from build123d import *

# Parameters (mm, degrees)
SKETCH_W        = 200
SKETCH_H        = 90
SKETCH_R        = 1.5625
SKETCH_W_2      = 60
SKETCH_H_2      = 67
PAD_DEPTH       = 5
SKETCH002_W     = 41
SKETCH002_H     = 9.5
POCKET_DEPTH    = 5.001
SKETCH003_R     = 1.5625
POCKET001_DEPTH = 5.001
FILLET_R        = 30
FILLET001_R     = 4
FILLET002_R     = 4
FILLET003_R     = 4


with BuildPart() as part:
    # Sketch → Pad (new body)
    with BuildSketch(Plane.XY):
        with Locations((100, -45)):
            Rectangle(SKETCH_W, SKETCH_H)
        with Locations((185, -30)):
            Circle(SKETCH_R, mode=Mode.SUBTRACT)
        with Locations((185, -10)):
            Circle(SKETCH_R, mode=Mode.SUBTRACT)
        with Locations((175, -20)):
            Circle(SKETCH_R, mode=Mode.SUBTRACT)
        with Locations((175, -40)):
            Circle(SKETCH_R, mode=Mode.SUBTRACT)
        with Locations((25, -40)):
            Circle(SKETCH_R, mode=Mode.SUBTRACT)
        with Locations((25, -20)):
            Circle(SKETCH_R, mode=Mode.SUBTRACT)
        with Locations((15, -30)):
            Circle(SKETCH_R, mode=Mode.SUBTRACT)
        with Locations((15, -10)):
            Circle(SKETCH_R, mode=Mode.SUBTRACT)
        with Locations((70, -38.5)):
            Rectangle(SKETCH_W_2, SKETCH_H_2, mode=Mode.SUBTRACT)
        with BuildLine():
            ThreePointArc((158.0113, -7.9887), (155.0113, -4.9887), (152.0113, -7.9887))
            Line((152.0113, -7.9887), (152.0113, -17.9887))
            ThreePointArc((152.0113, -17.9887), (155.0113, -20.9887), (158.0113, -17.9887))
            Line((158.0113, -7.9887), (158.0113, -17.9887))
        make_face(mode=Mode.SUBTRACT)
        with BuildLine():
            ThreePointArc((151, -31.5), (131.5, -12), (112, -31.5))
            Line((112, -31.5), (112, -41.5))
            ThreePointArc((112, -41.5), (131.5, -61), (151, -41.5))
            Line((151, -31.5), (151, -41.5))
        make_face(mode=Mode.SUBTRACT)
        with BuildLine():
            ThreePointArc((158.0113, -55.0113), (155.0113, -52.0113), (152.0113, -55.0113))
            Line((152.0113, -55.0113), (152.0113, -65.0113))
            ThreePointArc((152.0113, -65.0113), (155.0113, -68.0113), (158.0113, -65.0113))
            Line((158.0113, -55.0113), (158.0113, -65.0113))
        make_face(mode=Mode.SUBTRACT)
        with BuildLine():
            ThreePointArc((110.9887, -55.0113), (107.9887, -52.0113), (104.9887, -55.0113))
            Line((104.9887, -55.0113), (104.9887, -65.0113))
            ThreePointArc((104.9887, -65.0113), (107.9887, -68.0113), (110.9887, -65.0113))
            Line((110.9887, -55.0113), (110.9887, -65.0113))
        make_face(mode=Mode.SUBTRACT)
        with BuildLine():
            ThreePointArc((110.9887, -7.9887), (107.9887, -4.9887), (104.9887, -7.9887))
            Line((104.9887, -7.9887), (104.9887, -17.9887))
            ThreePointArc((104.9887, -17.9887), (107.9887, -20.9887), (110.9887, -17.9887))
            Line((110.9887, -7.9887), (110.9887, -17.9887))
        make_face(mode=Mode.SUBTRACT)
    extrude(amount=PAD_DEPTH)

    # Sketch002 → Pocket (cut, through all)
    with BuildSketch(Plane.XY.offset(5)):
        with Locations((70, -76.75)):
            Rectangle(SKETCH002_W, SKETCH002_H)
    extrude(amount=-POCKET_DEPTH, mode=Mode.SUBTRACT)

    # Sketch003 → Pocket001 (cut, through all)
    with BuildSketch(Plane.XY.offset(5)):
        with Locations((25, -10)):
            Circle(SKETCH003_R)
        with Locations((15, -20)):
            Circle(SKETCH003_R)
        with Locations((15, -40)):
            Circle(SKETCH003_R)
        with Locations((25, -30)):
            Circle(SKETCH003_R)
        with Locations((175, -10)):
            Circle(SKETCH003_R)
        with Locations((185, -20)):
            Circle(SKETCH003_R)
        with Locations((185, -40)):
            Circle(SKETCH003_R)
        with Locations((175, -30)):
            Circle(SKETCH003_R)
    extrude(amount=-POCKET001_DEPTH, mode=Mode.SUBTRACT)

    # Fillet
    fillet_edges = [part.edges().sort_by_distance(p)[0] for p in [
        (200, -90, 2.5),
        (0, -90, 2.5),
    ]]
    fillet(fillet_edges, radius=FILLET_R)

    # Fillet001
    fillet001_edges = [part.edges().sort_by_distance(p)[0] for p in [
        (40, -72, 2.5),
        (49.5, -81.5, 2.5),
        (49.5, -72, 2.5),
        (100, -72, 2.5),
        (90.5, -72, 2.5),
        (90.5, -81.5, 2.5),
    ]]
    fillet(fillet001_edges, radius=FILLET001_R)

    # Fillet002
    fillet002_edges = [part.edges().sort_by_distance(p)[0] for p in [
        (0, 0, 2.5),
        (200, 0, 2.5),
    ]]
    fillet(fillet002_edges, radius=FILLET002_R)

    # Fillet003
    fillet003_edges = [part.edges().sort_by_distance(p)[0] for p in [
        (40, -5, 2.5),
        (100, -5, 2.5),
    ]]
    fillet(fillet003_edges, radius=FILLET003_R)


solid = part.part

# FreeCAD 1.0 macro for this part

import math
import FreeCAD as App
import Part
import Sketcher

V = App.Vector
Q = App.Units.Quantity


def edges_at(feature, points):
    """Names of the edges that pass closest to the given points."""
    edges = feature.Shape.Edges
    near = lambda p: min(range(len(edges)), key=lambda i: edges[i].distToShape(Part.Vertex(*p))[0])
    return sorted({f"Edge{near(p) + 1}" for p in points})

doc = App.newDocument("Part")
params = doc.addObject("Spreadsheet::Sheet", "Params")
for row, (alias, value) in enumerate([
    ("sketch1_radius", "3 mm"),
    ("sketch1_radius2", "19.5 mm"),
    ("sketch1_width", "200 mm"),
    ("sketch1_width2", "60 mm"),
    ("sketch1_height", "90 mm"),
    ("pad1_length", "5 mm"),
    ("sketch2_width", "41 mm"),
    ("sketch2_height", "9.5 mm"),
    ("fillet_radius", "30 mm"),
    ("fillet2_radius", "4 mm"),
    ("fillet3_radius", "4 mm"),
    ("fillet4_radius", "4 mm"),
], start=1):
    params.set(f"A{row}", alias)
    params.set(f"B{row}", "=" + value)
    params.setAlias(f"B{row}", alias)

body = doc.addObject("PartDesign::Body", "Body")

# Sketch on XY plane
sketch1 = body.newObject("Sketcher::SketchObject", "Sketch")
sketch1.AttachmentSupport = (doc.getObject("XY_Plane"), [""])
sketch1.MapMode = "FlatFace"
sketch1.addGeometry(Part.LineSegment(V(0, 0, 0), V(0, -90, 0)), False)
sketch1.addGeometry(Part.LineSegment(V(0, -90, 0), V(200, -90, 0)), False)
sketch1.addGeometry(Part.LineSegment(V(200, -90, 0), V(200, 0, 0)), False)
sketch1.addGeometry(Part.LineSegment(V(200, 0, 0), V(0, 0, 0)), False)
sketch1.addGeometry(Part.Circle(V(25, -40, 0), V(0, 0, 1), 1.5625), False)
sketch1.addGeometry(Part.LineSegment(V(100, -72, 0), V(40, -72, 0)), False)
sketch1.addGeometry(Part.LineSegment(V(40, -72, 0), V(40, -5, 0)), False)
sketch1.addGeometry(Part.LineSegment(V(40, -5, 0), V(100, -5, 0)), False)
sketch1.addGeometry(Part.LineSegment(V(100, -5, 0), V(100, -72, 0)), False)
sketch1.addGeometry(Part.ArcOfCircle(Part.Circle(V(107.9887, -55.0113, 0), V(0, 0, 1), 3), math.radians(0), math.radians(180)), False)
sketch1.addGeometry(Part.LineSegment(V(110.9887, -55.0113, 0), V(110.9887, -65.0113, 0)), False)
sketch1.addGeometry(Part.ArcOfCircle(Part.Circle(V(107.9887, -65.0113, 0), V(0, 0, 1), 3), math.radians(180), math.radians(360)), False)
sketch1.addGeometry(Part.LineSegment(V(104.9887, -65.0113, 0), V(104.9887, -55.0113, 0)), False)
sketch1.addGeometry(Part.ArcOfCircle(Part.Circle(V(155.0113, -55.0113, 0), V(0, 0, 1), 3), math.radians(0), math.radians(180)), False)
sketch1.addGeometry(Part.LineSegment(V(158.0113, -55.0113, 0), V(158.0113, -65.0113, 0)), False)
sketch1.addGeometry(Part.ArcOfCircle(Part.Circle(V(155.0113, -65.0113, 0), V(0, 0, 1), 3), math.radians(180), math.radians(360)), False)
sketch1.addGeometry(Part.LineSegment(V(152.0113, -65.0113, 0), V(152.0113, -55.0113, 0)), False)
sketch1.addGeometry(Part.Circle(V(175, -40, 0), V(0, 0, 1), 1.5625), False)
sketch1.addGeometry(Part.Circle(V(15, -30, 0), V(0, 0, 1), 1.5625), False)
sketch1.addGeometry(Part.Circle(V(25, -20, 0), V(0, 0, 1), 1.5625), False)
sketch1.addGeometry(Part.Circle(V(15, -10, 0), V(0, 0, 1), 1.5625), False)
sketch1.addGeometry(Part.ArcOfCircle(Part.Circle(V(131.5, -31.5, 0), V(0, 0, 1), 19.5), math.radians(0), math.radians(180)), False)
sketch1.addGeometry(Part.LineSegment(V(151, -31.5, 0), V(151, -41.5, 0)), False)
sketch1.addGeometry(Part.ArcOfCircle(Part.Circle(V(131.5, -41.5, 0), V(0, 0, 1), 19.5), math.radians(180), math.radians(360)), False)
sketch1.addGeometry(Part.LineSegment(V(112, -41.5, 0), V(112, -31.5, 0)), False)
sketch1.addGeometry(Part.Circle(V(185, -30, 0), V(0, 0, 1), 1.5625), False)
sketch1.addGeometry(Part.ArcOfCircle(Part.Circle(V(107.9887, -7.9887, 0), V(0, 0, 1), 3), math.radians(0), math.radians(180)), False)
sketch1.addGeometry(Part.LineSegment(V(110.9887, -7.9887, 0), V(110.9887, -17.9887, 0)), False)
sketch1.addGeometry(Part.ArcOfCircle(Part.Circle(V(107.9887, -17.9887, 0), V(0, 0, 1), 3), math.radians(180), math.radians(360)), False)
sketch1.addGeometry(Part.LineSegment(V(104.9887, -17.9887, 0), V(104.9887, -7.9887, 0)), False)
sketch1.addGeometry(Part.Circle(V(175, -20, 0), V(0, 0, 1), 1.5625), False)
sketch1.addGeometry(Part.ArcOfCircle(Part.Circle(V(155.0113, -7.9887, 0), V(0, 0, 1), 3), math.radians(0), math.radians(180)), False)
sketch1.addGeometry(Part.LineSegment(V(158.0113, -7.9887, 0), V(158.0113, -17.9887, 0)), False)
sketch1.addGeometry(Part.ArcOfCircle(Part.Circle(V(155.0113, -17.9887, 0), V(0, 0, 1), 3), math.radians(180), math.radians(360)), False)
sketch1.addGeometry(Part.LineSegment(V(152.0113, -17.9887, 0), V(152.0113, -7.9887, 0)), False)
sketch1.addGeometry(Part.Circle(V(185, -10, 0), V(0, 0, 1), 1.5625), False)
sketch1.addConstraint(Sketcher.Constraint("Coincident", 0, 2, 1, 1))
sketch1.addConstraint(Sketcher.Constraint("Coincident", 1, 2, 2, 1))
sketch1.addConstraint(Sketcher.Constraint("Coincident", 2, 2, 3, 1))
sketch1.addConstraint(Sketcher.Constraint("Coincident", 3, 2, 0, 1))
sketch1.addConstraint(Sketcher.Constraint("Coincident", 5, 2, 6, 1))
sketch1.addConstraint(Sketcher.Constraint("Coincident", 6, 2, 7, 1))
sketch1.addConstraint(Sketcher.Constraint("Coincident", 7, 2, 8, 1))
sketch1.addConstraint(Sketcher.Constraint("Coincident", 8, 2, 5, 1))
sketch1.addConstraint(Sketcher.Constraint("Tangent", 9, 1, 10, 1))
sketch1.addConstraint(Sketcher.Constraint("Tangent", 10, 2, 11, 2))
sketch1.addConstraint(Sketcher.Constraint("Tangent", 11, 1, 12, 1))
sketch1.addConstraint(Sketcher.Constraint("Tangent", 12, 2, 9, 2))
sketch1.addConstraint(Sketcher.Constraint("Tangent", 13, 1, 14, 1))
sketch1.addConstraint(Sketcher.Constraint("Tangent", 14, 2, 15, 2))
sketch1.addConstraint(Sketcher.Constraint("Tangent", 15, 1, 16, 1))
sketch1.addConstraint(Sketcher.Constraint("Tangent", 16, 2, 13, 2))
sketch1.addConstraint(Sketcher.Constraint("Tangent", 21, 1, 22, 1))
sketch1.addConstraint(Sketcher.Constraint("Tangent", 22, 2, 23, 2))
sketch1.addConstraint(Sketcher.Constraint("Tangent", 23, 1, 24, 1))
sketch1.addConstraint(Sketcher.Constraint("Tangent", 24, 2, 21, 2))
sketch1.addConstraint(Sketcher.Constraint("Tangent", 26, 1, 27, 1))
sketch1.addConstraint(Sketcher.Constraint("Tangent", 27, 2, 28, 2))
sketch1.addConstraint(Sketcher.Constraint("Tangent", 28, 1, 29, 1))
sketch1.addConstraint(Sketcher.Constraint("Tangent", 29, 2, 26, 2))
sketch1.addConstraint(Sketcher.Constraint("Tangent", 31, 1, 32, 1))
sketch1.addConstraint(Sketcher.Constraint("Tangent", 32, 2, 33, 2))
sketch1.addConstraint(Sketcher.Constraint("Tangent", 33, 1, 34, 1))
sketch1.addConstraint(Sketcher.Constraint("Tangent", 34, 2, 31, 2))
sketch1.addConstraint(Sketcher.Constraint("Vertical", 0))
sketch1.addConstraint(Sketcher.Constraint("Horizontal", 1))
sketch1.addConstraint(Sketcher.Constraint("Vertical", 2))
sketch1.addConstraint(Sketcher.Constraint("Horizontal", 3))
sketch1.addConstraint(Sketcher.Constraint("Horizontal", 5))
sketch1.addConstraint(Sketcher.Constraint("Vertical", 6))
sketch1.addConstraint(Sketcher.Constraint("Horizontal", 7))
sketch1.addConstraint(Sketcher.Constraint("Vertical", 8))
sketch1.addConstraint(Sketcher.Constraint("Vertical", 10))
sketch1.addConstraint(Sketcher.Constraint("Vertical", 12))
sketch1.addConstraint(Sketcher.Constraint("Vertical", 14))
sketch1.addConstraint(Sketcher.Constraint("Vertical", 16))
sketch1.addConstraint(Sketcher.Constraint("Vertical", 22))
sketch1.addConstraint(Sketcher.Constraint("Vertical", 24))
sketch1.addConstraint(Sketcher.Constraint("Vertical", 27))
sketch1.addConstraint(Sketcher.Constraint("Vertical", 29))
sketch1.addConstraint(Sketcher.Constraint("Vertical", 32))
sketch1.addConstraint(Sketcher.Constraint("Vertical", 34))
sketch1.addConstraint(Sketcher.Constraint("Coincident", 3, 2, -1, 1))
sketch1.addConstraint(Sketcher.Constraint("Equal", 11, 13))
sketch1.addConstraint(Sketcher.Constraint("Equal", 4, 17))
sketch1.addConstraint(Sketcher.Constraint("Equal", 17, 18))
sketch1.addConstraint(Sketcher.Constraint("Equal", 18, 19))
sketch1.addConstraint(Sketcher.Constraint("Equal", 19, 20))
sketch1.addConstraint(Sketcher.Constraint("Equal", 20, 25))
sketch1.addConstraint(Sketcher.Constraint("Equal", 15, 26))
sketch1.addConstraint(Sketcher.Constraint("Equal", 25, 30))
sketch1.addConstraint(Sketcher.Constraint("Equal", 28, 31))
sketch1.addConstraint(Sketcher.Constraint("Equal", 30, 35))
sketch1.addConstraint(Sketcher.Constraint("Horizontal", 9, 3, 13, 3))
sketch1.addConstraint(Sketcher.Constraint("Horizontal", 11, 3, 15, 3))
sketch1.addConstraint(Sketcher.Constraint("Horizontal", 4, 3, 17, 3))
sketch1.addConstraint(Sketcher.Constraint("Horizontal", 18, 3, 25, 3))
sketch1.addConstraint(Sketcher.Constraint("Horizontal", 19, 3, 30, 3))
sketch1.addConstraint(Sketcher.Constraint("Horizontal", 26, 3, 31, 3))
sketch1.addConstraint(Sketcher.Constraint("Horizontal", 28, 3, 33, 3))
sketch1.addConstraint(Sketcher.Constraint("Horizontal", 20, 3, 35, 3))
sketch1.addConstraint(Sketcher.Constraint("Vertical", 4, 3, 19, 3))
sketch1.addConstraint(Sketcher.Constraint("Vertical", 18, 3, 20, 3))
sketch1.addConstraint(Sketcher.Constraint("Vertical", 11, 3, 26, 3))
sketch1.addConstraint(Sketcher.Constraint("Vertical", 17, 3, 30, 3))
sketch1.addConstraint(Sketcher.Constraint("Vertical", 15, 3, 31, 3))
sketch1.addConstraint(Sketcher.Constraint("Vertical", 25, 3, 35, 3))
sketch1.addConstraint(Sketcher.Constraint("Equal", 16, 22))
sketch1.addConstraint(Sketcher.Constraint("Equal", 24, 27))
sketch1.addConstraint(Sketcher.Constraint("Radius", 9, Q("3 mm")))
sketch1.addConstraint(Sketcher.Constraint("Radius", 21, Q("19.5 mm")))
sketch1.addConstraint(Sketcher.Constraint("DistanceX", 1, 1, 1, 2, Q("200 mm")))
sketch1.addConstraint(Sketcher.Constraint("DistanceX", 5, 2, 5, 1, Q("60 mm")))
sketch1.addConstraint(Sketcher.Constraint("DistanceY", 0, 2, 0, 1, Q("90 mm")))
sketch1.addConstraint(Sketcher.Constraint("DistanceY", 6, 1, 6, 2, Q("67 mm")))
sketch1.addConstraint(Sketcher.Constraint("DistanceY", 10, 2, 10, 1, Q("10 mm")))
sketch1.addConstraint(Sketcher.Constraint("Diameter", 4, Q("3.125 mm")))
sketch1.addConstraint(Sketcher.Constraint("DistanceX", -1, 1, 4, 3, Q("25 mm")))
sketch1.addConstraint(Sketcher.Constraint("DistanceY", 4, 3, -1, 1, Q("40 mm")))
sketch1.addConstraint(Sketcher.Constraint("DistanceX", -1, 1, 17, 3, Q("175 mm")))
sketch1.addConstraint(Sketcher.Constraint("DistanceX", -1, 1, 18, 3, Q("15 mm")))
sketch1.addConstraint(Sketcher.Constraint("DistanceY", 18, 3, -1, 1, Q("30 mm")))
sketch1.addConstraint(Sketcher.Constraint("DistanceY", 19, 3, -1, 1, Q("20 mm")))
sketch1.addConstraint(Sketcher.Constraint("DistanceY", 20, 3, -1, 1, Q("10 mm")))
sketch1.addConstraint(Sketcher.Constraint("DistanceX", -1, 1, 25, 3, Q("185 mm")))
sketch1.addConstraint(Sketcher.Constraint("DistanceX", -1, 1, 5, 2, Q("40 mm")))
sketch1.addConstraint(Sketcher.Constraint("DistanceY", 5, 2, -1, 1, Q("72 mm")))
sketch1.addConstraint(Sketcher.Constraint("DistanceX", -1, 1, 21, 1, Q("151 mm")))
sketch1.addConstraint(Sketcher.Constraint("DistanceY", 21, 3, -1, 1, Q("31.5 mm")))
sketch1.addConstraint(Sketcher.Constraint("DistanceX", -1, 1, 9, 3, Q("107.9887 mm")))
sketch1.addConstraint(Sketcher.Constraint("DistanceY", 9, 3, -1, 1, Q("55.0113 mm")))
sketch1.addConstraint(Sketcher.Constraint("DistanceX", -1, 1, 13, 3, Q("155.0113 mm")))
sketch1.addConstraint(Sketcher.Constraint("DistanceY", 26, 3, -1, 1, Q("7.9887 mm")))
sketch1.setExpression("Constraints[73]", "Params.sketch1_radius")
sketch1.setExpression("Constraints[74]", "Params.sketch1_radius2")
sketch1.setExpression("Constraints[75]", "Params.sketch1_width")
sketch1.setExpression("Constraints[76]", "Params.sketch1_width2")
sketch1.setExpression("Constraints[77]", "Params.sketch1_height")
pad1 = body.newObject("PartDesign::Pad", "Pad")
pad1.Profile = sketch1
pad1.setExpression("Length", "Params.pad1_length")

# Sketch on XY plane
sketch2 = body.newObject("Sketcher::SketchObject", "Sketch001")
sketch2.AttachmentSupport = (doc.getObject("XY_Plane"), [""])
sketch2.MapMode = "FlatFace"
sketch2.AttachmentOffset = App.Placement(V(0, 0, 5), App.Rotation())
sketch2.addGeometry(Part.LineSegment(V(49.5, -72, 0), V(49.5, -81.5, 0)), False)
sketch2.addGeometry(Part.LineSegment(V(49.5, -81.5, 0), V(90.5, -81.5, 0)), False)
sketch2.addGeometry(Part.LineSegment(V(90.5, -81.5, 0), V(90.5, -72, 0)), False)
sketch2.addGeometry(Part.LineSegment(V(90.5, -72, 0), V(49.5, -72, 0)), False)
sketch2.addConstraint(Sketcher.Constraint("Coincident", 0, 2, 1, 1))
sketch2.addConstraint(Sketcher.Constraint("Coincident", 1, 2, 2, 1))
sketch2.addConstraint(Sketcher.Constraint("Coincident", 2, 2, 3, 1))
sketch2.addConstraint(Sketcher.Constraint("Coincident", 3, 2, 0, 1))
sketch2.addConstraint(Sketcher.Constraint("Vertical", 0))
sketch2.addConstraint(Sketcher.Constraint("Horizontal", 1))
sketch2.addConstraint(Sketcher.Constraint("Vertical", 2))
sketch2.addConstraint(Sketcher.Constraint("Horizontal", 3))
sketch2.addConstraint(Sketcher.Constraint("DistanceX", 1, 1, 1, 2, Q("41 mm")))
sketch2.addConstraint(Sketcher.Constraint("DistanceY", 0, 2, 0, 1, Q("9.5 mm")))
sketch2.addConstraint(Sketcher.Constraint("DistanceY", 2, 2, -1, 1, Q("72 mm")))
sketch2.addConstraint(Sketcher.Constraint("DistanceX", -1, 1, 0, 2, Q("49.5 mm")))
sketch2.setExpression("Constraints[8]", "Params.sketch2_width")
sketch2.setExpression("Constraints[9]", "Params.sketch2_height")
pocket1 = body.newObject("PartDesign::Pocket", "Pocket")
pocket1.Profile = sketch2
pocket1.Type = "ThroughAll"

# Sketch on XY plane
sketch3 = body.newObject("Sketcher::SketchObject", "Sketch002")
sketch3.AttachmentSupport = (doc.getObject("XY_Plane"), [""])
sketch3.MapMode = "FlatFace"
sketch3.AttachmentOffset = App.Placement(V(0, 0, 5), App.Rotation())
sketch3.addGeometry(Part.Circle(V(25, -10, 0), V(0, 0, 1), 1.5625), False)
sketch3.addGeometry(Part.Circle(V(15, -20, 0), V(0, 0, 1), 1.5625), False)
sketch3.addGeometry(Part.Circle(V(15, -40, 0), V(0, 0, 1), 1.5625), False)
sketch3.addGeometry(Part.Circle(V(25, -30, 0), V(0, 0, 1), 1.5625), False)
sketch3.addGeometry(Part.Circle(V(175, -10, 0), V(0, 0, 1), 1.5625), False)
sketch3.addGeometry(Part.Circle(V(185, -20, 0), V(0, 0, 1), 1.5625), False)
sketch3.addGeometry(Part.Circle(V(185, -40, 0), V(0, 0, 1), 1.5625), False)
sketch3.addGeometry(Part.Circle(V(175, -30, 0), V(0, 0, 1), 1.5625), False)
sketch3.addConstraint(Sketcher.Constraint("Equal", 0, 1))
sketch3.addConstraint(Sketcher.Constraint("Equal", 1, 2))
sketch3.addConstraint(Sketcher.Constraint("Equal", 2, 3))
sketch3.addConstraint(Sketcher.Constraint("Equal", 3, 4))
sketch3.addConstraint(Sketcher.Constraint("Equal", 4, 5))
sketch3.addConstraint(Sketcher.Constraint("Equal", 5, 6))
sketch3.addConstraint(Sketcher.Constraint("Equal", 6, 7))
sketch3.addConstraint(Sketcher.Constraint("Horizontal", 0, 3, 4, 3))
sketch3.addConstraint(Sketcher.Constraint("Horizontal", 1, 3, 5, 3))
sketch3.addConstraint(Sketcher.Constraint("Horizontal", 2, 3, 6, 3))
sketch3.addConstraint(Sketcher.Constraint("Horizontal", 3, 3, 7, 3))
sketch3.addConstraint(Sketcher.Constraint("Vertical", 1, 3, 2, 3))
sketch3.addConstraint(Sketcher.Constraint("Vertical", 0, 3, 3, 3))
sketch3.addConstraint(Sketcher.Constraint("Vertical", 5, 3, 6, 3))
sketch3.addConstraint(Sketcher.Constraint("Vertical", 4, 3, 7, 3))
sketch3.addConstraint(Sketcher.Constraint("Diameter", 0, Q("3.125 mm")))
sketch3.addConstraint(Sketcher.Constraint("DistanceX", -1, 1, 0, 3, Q("25 mm")))
sketch3.addConstraint(Sketcher.Constraint("DistanceY", 0, 3, -1, 1, Q("10 mm")))
sketch3.addConstraint(Sketcher.Constraint("DistanceX", -1, 1, 1, 3, Q("15 mm")))
sketch3.addConstraint(Sketcher.Constraint("DistanceY", 1, 3, -1, 1, Q("20 mm")))
sketch3.addConstraint(Sketcher.Constraint("DistanceY", 2, 3, -1, 1, Q("40 mm")))
sketch3.addConstraint(Sketcher.Constraint("DistanceY", 3, 3, -1, 1, Q("30 mm")))
sketch3.addConstraint(Sketcher.Constraint("DistanceX", -1, 1, 4, 3, Q("175 mm")))
sketch3.addConstraint(Sketcher.Constraint("DistanceX", -1, 1, 5, 3, Q("185 mm")))
pocket2 = body.newObject("PartDesign::Pocket", "Pocket001")
pocket2.Profile = sketch3
pocket2.Type = "ThroughAll"
doc.recompute()

fillet = body.newObject("PartDesign::Fillet", "Fillet")
fillet.Base = (pocket2, edges_at(pocket2, [(200, -90, 2.5), (0, -90, 2.5)]))
fillet.setExpression("Radius", "Params.fillet_radius")
doc.recompute()

fillet2 = body.newObject("PartDesign::Fillet", "Fillet001")
fillet2.Base = (fillet, edges_at(fillet, [
    (40, -72, 2.5),
    (49.5, -81.5, 2.5),
    (49.5, -72, 2.5),
    (100, -72, 2.5),
    (90.5, -72, 2.5),
    (90.5, -81.5, 2.5),
]))
fillet2.setExpression("Radius", "Params.fillet2_radius")
doc.recompute()

fillet3 = body.newObject("PartDesign::Fillet", "Fillet002")
fillet3.Base = (fillet2, edges_at(fillet2, [(0, 0, 2.5), (200, 0, 2.5)]))
fillet3.setExpression("Radius", "Params.fillet3_radius")
doc.recompute()

fillet4 = body.newObject("PartDesign::Fillet", "Fillet003")
fillet4.Base = (fillet3, edges_at(fillet3, [(40, -5, 2.5), (100, -5, 2.5)]))
fillet4.setExpression("Radius", "Params.fillet4_radius")

doc.recompute()
